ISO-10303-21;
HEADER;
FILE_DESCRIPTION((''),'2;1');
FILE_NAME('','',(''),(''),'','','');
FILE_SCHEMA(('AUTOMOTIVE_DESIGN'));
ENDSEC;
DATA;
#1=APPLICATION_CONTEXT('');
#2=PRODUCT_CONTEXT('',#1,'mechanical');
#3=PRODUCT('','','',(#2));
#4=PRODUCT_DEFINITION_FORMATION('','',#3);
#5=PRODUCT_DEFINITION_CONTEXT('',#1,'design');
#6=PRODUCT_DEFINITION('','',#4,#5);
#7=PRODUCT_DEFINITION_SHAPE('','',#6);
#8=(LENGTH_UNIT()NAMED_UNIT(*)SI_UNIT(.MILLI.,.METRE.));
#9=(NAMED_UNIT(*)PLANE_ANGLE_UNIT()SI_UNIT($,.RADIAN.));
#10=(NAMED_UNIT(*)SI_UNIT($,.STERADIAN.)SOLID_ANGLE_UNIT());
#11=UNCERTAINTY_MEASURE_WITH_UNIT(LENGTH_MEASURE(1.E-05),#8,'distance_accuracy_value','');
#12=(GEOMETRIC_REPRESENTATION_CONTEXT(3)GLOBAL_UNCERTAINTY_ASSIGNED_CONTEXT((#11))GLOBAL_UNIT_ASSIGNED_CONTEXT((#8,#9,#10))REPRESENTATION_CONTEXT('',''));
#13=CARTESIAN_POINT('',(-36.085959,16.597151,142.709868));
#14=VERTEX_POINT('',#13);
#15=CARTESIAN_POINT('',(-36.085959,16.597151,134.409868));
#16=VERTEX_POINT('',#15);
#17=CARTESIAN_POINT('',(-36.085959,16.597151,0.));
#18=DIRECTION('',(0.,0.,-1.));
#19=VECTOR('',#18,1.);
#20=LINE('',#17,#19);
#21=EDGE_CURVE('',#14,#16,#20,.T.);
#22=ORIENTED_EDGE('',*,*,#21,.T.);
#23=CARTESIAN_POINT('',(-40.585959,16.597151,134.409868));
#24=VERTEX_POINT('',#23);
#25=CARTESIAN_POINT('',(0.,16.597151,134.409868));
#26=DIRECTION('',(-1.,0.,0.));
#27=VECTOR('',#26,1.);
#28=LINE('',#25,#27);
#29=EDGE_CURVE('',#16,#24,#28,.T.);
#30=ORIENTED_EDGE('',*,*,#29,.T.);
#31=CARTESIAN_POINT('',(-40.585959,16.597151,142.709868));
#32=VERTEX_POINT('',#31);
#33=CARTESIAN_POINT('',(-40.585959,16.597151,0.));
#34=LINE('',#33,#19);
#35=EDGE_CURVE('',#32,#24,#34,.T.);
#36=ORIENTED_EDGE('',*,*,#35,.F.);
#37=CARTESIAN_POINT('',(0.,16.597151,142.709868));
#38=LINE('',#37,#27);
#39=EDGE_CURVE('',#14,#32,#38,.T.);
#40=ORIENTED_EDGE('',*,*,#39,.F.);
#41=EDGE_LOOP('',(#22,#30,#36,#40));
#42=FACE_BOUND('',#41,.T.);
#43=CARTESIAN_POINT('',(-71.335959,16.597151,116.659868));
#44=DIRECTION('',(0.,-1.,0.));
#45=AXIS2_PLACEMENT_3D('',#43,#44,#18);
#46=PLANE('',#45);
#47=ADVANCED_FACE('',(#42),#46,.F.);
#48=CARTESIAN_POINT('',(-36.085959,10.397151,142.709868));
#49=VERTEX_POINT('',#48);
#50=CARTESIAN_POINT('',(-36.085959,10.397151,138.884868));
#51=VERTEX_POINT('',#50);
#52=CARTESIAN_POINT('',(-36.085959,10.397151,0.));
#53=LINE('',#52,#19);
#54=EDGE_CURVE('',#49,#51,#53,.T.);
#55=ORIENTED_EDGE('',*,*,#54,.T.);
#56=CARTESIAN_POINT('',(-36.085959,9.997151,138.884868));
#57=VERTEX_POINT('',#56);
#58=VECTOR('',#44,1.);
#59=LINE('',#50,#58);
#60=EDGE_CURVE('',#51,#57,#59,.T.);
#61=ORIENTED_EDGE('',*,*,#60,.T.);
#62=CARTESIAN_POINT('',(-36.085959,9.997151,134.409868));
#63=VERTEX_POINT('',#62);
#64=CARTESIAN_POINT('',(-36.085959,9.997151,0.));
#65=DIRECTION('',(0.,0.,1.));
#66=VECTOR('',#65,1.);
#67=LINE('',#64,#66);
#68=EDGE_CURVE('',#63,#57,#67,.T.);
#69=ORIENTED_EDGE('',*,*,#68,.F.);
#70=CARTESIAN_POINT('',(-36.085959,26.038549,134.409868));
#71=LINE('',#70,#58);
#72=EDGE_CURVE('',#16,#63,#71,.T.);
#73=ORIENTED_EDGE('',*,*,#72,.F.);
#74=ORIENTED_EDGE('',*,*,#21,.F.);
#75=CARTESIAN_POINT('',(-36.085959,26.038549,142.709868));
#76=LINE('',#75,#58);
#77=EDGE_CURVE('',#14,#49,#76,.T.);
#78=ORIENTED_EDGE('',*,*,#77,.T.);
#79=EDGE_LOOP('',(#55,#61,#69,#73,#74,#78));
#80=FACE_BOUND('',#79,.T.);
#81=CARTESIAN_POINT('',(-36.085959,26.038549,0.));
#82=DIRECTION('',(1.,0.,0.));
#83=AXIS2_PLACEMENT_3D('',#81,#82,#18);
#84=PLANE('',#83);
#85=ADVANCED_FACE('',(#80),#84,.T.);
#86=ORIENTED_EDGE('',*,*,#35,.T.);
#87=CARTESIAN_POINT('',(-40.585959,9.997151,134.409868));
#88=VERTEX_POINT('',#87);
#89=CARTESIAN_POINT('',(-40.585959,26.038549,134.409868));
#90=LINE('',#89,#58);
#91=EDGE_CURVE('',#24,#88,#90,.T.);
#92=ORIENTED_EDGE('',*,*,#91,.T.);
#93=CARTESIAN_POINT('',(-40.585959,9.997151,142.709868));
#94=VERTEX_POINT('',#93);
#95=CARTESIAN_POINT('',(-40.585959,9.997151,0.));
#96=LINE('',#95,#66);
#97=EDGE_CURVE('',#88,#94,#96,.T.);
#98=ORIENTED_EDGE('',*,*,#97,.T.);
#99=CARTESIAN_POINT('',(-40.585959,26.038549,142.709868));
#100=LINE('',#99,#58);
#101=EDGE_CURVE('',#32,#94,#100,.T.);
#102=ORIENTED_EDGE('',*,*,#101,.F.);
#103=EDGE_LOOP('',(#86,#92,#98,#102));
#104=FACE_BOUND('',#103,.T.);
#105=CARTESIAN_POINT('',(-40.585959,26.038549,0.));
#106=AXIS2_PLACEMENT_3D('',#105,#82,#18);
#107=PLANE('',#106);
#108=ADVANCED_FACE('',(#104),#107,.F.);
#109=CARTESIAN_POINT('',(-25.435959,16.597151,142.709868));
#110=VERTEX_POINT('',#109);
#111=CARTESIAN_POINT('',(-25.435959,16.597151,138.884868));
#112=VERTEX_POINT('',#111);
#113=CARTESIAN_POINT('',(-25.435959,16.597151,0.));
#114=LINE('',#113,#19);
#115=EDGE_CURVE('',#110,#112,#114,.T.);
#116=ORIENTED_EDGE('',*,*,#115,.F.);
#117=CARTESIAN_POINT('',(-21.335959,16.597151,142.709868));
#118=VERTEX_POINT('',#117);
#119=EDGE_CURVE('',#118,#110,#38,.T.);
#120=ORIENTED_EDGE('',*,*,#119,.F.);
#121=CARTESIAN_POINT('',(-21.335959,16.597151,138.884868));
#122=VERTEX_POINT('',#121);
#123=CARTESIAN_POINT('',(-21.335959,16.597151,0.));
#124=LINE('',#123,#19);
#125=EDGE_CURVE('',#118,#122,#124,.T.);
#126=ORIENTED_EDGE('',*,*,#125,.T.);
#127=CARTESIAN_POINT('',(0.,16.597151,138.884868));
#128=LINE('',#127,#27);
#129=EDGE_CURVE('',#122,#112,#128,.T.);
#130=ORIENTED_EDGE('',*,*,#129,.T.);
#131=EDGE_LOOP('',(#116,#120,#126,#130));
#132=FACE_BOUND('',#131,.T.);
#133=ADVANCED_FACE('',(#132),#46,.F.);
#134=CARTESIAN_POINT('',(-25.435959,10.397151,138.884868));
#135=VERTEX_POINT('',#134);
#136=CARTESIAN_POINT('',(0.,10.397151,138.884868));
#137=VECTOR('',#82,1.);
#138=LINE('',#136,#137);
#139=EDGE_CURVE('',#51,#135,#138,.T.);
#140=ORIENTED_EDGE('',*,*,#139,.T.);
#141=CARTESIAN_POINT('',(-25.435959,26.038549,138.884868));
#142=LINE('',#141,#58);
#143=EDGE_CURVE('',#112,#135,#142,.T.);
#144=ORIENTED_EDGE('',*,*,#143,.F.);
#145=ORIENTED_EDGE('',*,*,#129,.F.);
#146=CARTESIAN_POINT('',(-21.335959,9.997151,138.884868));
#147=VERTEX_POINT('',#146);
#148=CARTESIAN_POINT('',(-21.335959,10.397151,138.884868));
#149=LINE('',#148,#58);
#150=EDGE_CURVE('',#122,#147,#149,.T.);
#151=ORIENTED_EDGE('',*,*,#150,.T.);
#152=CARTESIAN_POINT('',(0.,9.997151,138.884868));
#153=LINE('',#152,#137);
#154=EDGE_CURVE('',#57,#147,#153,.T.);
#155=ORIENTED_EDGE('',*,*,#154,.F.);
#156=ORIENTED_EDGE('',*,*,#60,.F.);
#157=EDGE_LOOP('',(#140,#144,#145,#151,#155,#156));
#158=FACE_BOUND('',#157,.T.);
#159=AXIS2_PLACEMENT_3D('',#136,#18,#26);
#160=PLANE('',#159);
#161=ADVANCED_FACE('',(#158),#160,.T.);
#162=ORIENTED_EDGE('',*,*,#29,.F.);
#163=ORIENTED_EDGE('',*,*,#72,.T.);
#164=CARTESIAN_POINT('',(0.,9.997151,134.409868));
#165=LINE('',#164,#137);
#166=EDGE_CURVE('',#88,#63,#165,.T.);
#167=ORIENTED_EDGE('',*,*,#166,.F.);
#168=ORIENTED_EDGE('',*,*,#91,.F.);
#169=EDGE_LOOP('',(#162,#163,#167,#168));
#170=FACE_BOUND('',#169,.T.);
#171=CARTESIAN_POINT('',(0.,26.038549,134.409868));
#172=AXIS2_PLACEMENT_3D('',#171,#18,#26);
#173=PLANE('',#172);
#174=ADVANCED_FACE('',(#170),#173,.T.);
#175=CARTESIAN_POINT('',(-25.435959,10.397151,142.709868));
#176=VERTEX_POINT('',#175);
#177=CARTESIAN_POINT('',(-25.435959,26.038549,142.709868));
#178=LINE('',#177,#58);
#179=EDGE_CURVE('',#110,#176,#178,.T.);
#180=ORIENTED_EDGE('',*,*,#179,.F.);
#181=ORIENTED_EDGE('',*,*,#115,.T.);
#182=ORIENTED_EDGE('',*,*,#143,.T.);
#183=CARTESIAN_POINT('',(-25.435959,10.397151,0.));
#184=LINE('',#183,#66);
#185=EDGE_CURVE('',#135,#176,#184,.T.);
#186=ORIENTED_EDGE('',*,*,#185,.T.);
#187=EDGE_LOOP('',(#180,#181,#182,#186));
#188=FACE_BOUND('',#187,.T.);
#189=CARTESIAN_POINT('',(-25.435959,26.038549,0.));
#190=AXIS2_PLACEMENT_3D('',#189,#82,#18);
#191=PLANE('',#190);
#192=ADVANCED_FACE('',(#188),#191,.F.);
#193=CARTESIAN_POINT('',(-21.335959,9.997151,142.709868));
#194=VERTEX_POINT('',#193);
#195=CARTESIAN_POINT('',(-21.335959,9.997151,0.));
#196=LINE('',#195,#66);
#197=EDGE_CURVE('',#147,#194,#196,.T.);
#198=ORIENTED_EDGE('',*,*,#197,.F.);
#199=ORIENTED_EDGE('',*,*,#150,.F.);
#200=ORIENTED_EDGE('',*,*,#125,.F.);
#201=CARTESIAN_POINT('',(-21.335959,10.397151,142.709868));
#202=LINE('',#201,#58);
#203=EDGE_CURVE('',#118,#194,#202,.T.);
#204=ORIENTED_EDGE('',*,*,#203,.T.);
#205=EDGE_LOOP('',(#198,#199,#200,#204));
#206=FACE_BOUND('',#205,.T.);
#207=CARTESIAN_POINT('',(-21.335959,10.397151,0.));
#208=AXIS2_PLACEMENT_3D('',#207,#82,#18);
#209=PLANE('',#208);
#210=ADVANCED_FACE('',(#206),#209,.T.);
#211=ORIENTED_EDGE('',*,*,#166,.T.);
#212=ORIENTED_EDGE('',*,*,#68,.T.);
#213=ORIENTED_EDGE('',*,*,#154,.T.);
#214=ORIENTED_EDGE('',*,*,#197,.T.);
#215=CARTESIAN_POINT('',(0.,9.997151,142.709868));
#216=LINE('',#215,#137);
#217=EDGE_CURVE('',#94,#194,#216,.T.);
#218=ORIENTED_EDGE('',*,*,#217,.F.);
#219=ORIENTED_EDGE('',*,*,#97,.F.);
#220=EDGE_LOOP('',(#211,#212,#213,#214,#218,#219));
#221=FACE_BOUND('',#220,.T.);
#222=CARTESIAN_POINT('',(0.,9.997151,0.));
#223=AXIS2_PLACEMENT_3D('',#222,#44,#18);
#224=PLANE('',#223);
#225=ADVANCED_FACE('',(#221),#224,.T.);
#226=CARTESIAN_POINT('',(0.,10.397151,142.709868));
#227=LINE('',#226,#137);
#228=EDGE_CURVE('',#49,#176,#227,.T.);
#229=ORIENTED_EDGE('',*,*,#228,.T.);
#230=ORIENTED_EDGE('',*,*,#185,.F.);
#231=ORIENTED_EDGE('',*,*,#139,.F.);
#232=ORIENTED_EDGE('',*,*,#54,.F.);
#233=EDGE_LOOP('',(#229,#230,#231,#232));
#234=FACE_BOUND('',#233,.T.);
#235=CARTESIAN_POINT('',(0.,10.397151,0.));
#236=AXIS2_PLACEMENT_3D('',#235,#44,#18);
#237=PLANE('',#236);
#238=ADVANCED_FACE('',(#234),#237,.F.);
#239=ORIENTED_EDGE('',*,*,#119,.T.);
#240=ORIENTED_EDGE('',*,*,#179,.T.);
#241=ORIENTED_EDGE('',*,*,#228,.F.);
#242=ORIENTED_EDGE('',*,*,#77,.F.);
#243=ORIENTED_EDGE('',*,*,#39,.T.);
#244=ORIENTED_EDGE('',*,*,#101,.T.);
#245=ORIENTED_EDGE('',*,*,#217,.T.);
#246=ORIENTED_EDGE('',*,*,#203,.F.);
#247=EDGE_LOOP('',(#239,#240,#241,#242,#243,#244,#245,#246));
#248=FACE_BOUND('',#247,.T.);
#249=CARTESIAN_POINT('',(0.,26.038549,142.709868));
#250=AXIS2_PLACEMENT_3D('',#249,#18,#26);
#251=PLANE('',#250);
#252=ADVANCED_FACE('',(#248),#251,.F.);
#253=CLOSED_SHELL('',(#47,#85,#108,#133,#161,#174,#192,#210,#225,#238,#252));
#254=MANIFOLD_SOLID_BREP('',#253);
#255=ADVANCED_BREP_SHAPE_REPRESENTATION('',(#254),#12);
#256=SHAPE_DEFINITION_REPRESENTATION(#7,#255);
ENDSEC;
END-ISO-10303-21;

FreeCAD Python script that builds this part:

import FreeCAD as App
import Part
import Sketcher


def add_polygon(sketch, points):
    """Adds a closed chain of lines whose ends are joined by coincident constraints."""
    first, n = sketch.GeometryCount, len(points)
    for a, b in zip(points, points[1:] + points[:1]):
        sketch.addGeometry(Part.LineSegment(App.Vector(*a, 0), App.Vector(*b, 0)), False)
    for i in range(n):
        sketch.addConstraint(Sketcher.Constraint("Coincident", first + i, 2, first + (i + 1) % n, 1))

doc = App.newDocument("Part")
body = doc.addObject("PartDesign::Body", "Body")
body.AllowCompound = True

sketch1 = doc.addObject("Sketcher::SketchObject", "Sketch")
body.addObject(sketch1)
sketch1.AttachmentSupport = (doc.XZ_Plane, [""])
sketch1.MapMode = "FlatFace"
sketch1.AttachmentOffset = App.Placement(App.Vector(0, 0, -9.997151), App.Rotation())
add_polygon(sketch1, [(-40.6, 142.7), (-40.6, 134.4), (-36.1, 134.4), (-36.1, 142.7)])
add_polygon(sketch1, [(-25.4, 142.7), (-25.4, 138.9), (-21.3, 138.9), (-21.3, 142.7)])
sketch1.addConstraint([
    Sketcher.Constraint("Vertical", 0),
    Sketcher.Constraint("Horizontal", 1),
    Sketcher.Constraint("Vertical", 2),
    Sketcher.Constraint("Horizontal", 3),
    Sketcher.Constraint("Vertical", 4),
    Sketcher.Constraint("Horizontal", 5),
    Sketcher.Constraint("Vertical", 6),
    Sketcher.Constraint("Horizontal", 7),
    Sketcher.Constraint("Horizontal", 3, 2, 6, 2),
    Sketcher.Constraint("DistanceX", 1, 1, 1, 2, 4.5),
    Sketcher.Constraint("DistanceX", 5, 1, 5, 2, 4.1),
    Sketcher.Constraint("DistanceY", 0, 2, 0, 1, 8.3),
    Sketcher.Constraint("DistanceY", 4, 2, 4, 1, 3.825),
    Sketcher.Constraint("DistanceX", 2, 2, 4, 2, 10.65),
    Sketcher.Constraint("DistanceX", 0, 2, -1, 1, 40.585959),
    Sketcher.Constraint("DistanceY", -1, 1, 0, 2, 134.409868),
])
pad1 = doc.addObject("PartDesign::Pad", "Pad")
body.addObject(pad1)
pad1.Profile = sketch1
pad1.Length = 6.6
pad1.Reversed = True

sketch2 = doc.addObject("Sketcher::SketchObject", "Sketch001")
body.addObject(sketch2)
sketch2.AttachmentSupport = (doc.XZ_Plane, [""])
sketch2.MapMode = "FlatFace"
sketch2.AttachmentOffset = App.Placement(App.Vector(0, 0, -9.997151), App.Rotation())
add_polygon(sketch2, [(-40.6, 134.4), (-36.1, 134.4), (-36.1, 138.9), (-21.3, 138.9), (-21.3, 142.7), (-40.6, 142.7)])
sketch2.addConstraint([
    Sketcher.Constraint("Horizontal", 0),
    Sketcher.Constraint("Vertical", 1),
    Sketcher.Constraint("Horizontal", 2),
    Sketcher.Constraint("Vertical", 3),
    Sketcher.Constraint("Horizontal", 4),
    Sketcher.Constraint("Vertical", 5),
    Sketcher.Constraint("DistanceX", 0, 1, 0, 2, 4.5),
    Sketcher.Constraint("DistanceY", 5, 2, 5, 1, 8.3),
    Sketcher.Constraint("DistanceX", 2, 1, 2, 2, 14.75),
    Sketcher.Constraint("DistanceY", 1, 1, 1, 2, 4.475),
    Sketcher.Constraint("DistanceX", 0, 2, -1, 1, 36.085959),
    Sketcher.Constraint("DistanceY", -1, 1, 0, 2, 134.409868),
])
pad2 = doc.addObject("PartDesign::Pad", "Pad001")
body.addObject(pad2)
pad2.Profile = sketch2
pad2.Length = 0.4
pad2.Reversed = True

doc.recompute()
